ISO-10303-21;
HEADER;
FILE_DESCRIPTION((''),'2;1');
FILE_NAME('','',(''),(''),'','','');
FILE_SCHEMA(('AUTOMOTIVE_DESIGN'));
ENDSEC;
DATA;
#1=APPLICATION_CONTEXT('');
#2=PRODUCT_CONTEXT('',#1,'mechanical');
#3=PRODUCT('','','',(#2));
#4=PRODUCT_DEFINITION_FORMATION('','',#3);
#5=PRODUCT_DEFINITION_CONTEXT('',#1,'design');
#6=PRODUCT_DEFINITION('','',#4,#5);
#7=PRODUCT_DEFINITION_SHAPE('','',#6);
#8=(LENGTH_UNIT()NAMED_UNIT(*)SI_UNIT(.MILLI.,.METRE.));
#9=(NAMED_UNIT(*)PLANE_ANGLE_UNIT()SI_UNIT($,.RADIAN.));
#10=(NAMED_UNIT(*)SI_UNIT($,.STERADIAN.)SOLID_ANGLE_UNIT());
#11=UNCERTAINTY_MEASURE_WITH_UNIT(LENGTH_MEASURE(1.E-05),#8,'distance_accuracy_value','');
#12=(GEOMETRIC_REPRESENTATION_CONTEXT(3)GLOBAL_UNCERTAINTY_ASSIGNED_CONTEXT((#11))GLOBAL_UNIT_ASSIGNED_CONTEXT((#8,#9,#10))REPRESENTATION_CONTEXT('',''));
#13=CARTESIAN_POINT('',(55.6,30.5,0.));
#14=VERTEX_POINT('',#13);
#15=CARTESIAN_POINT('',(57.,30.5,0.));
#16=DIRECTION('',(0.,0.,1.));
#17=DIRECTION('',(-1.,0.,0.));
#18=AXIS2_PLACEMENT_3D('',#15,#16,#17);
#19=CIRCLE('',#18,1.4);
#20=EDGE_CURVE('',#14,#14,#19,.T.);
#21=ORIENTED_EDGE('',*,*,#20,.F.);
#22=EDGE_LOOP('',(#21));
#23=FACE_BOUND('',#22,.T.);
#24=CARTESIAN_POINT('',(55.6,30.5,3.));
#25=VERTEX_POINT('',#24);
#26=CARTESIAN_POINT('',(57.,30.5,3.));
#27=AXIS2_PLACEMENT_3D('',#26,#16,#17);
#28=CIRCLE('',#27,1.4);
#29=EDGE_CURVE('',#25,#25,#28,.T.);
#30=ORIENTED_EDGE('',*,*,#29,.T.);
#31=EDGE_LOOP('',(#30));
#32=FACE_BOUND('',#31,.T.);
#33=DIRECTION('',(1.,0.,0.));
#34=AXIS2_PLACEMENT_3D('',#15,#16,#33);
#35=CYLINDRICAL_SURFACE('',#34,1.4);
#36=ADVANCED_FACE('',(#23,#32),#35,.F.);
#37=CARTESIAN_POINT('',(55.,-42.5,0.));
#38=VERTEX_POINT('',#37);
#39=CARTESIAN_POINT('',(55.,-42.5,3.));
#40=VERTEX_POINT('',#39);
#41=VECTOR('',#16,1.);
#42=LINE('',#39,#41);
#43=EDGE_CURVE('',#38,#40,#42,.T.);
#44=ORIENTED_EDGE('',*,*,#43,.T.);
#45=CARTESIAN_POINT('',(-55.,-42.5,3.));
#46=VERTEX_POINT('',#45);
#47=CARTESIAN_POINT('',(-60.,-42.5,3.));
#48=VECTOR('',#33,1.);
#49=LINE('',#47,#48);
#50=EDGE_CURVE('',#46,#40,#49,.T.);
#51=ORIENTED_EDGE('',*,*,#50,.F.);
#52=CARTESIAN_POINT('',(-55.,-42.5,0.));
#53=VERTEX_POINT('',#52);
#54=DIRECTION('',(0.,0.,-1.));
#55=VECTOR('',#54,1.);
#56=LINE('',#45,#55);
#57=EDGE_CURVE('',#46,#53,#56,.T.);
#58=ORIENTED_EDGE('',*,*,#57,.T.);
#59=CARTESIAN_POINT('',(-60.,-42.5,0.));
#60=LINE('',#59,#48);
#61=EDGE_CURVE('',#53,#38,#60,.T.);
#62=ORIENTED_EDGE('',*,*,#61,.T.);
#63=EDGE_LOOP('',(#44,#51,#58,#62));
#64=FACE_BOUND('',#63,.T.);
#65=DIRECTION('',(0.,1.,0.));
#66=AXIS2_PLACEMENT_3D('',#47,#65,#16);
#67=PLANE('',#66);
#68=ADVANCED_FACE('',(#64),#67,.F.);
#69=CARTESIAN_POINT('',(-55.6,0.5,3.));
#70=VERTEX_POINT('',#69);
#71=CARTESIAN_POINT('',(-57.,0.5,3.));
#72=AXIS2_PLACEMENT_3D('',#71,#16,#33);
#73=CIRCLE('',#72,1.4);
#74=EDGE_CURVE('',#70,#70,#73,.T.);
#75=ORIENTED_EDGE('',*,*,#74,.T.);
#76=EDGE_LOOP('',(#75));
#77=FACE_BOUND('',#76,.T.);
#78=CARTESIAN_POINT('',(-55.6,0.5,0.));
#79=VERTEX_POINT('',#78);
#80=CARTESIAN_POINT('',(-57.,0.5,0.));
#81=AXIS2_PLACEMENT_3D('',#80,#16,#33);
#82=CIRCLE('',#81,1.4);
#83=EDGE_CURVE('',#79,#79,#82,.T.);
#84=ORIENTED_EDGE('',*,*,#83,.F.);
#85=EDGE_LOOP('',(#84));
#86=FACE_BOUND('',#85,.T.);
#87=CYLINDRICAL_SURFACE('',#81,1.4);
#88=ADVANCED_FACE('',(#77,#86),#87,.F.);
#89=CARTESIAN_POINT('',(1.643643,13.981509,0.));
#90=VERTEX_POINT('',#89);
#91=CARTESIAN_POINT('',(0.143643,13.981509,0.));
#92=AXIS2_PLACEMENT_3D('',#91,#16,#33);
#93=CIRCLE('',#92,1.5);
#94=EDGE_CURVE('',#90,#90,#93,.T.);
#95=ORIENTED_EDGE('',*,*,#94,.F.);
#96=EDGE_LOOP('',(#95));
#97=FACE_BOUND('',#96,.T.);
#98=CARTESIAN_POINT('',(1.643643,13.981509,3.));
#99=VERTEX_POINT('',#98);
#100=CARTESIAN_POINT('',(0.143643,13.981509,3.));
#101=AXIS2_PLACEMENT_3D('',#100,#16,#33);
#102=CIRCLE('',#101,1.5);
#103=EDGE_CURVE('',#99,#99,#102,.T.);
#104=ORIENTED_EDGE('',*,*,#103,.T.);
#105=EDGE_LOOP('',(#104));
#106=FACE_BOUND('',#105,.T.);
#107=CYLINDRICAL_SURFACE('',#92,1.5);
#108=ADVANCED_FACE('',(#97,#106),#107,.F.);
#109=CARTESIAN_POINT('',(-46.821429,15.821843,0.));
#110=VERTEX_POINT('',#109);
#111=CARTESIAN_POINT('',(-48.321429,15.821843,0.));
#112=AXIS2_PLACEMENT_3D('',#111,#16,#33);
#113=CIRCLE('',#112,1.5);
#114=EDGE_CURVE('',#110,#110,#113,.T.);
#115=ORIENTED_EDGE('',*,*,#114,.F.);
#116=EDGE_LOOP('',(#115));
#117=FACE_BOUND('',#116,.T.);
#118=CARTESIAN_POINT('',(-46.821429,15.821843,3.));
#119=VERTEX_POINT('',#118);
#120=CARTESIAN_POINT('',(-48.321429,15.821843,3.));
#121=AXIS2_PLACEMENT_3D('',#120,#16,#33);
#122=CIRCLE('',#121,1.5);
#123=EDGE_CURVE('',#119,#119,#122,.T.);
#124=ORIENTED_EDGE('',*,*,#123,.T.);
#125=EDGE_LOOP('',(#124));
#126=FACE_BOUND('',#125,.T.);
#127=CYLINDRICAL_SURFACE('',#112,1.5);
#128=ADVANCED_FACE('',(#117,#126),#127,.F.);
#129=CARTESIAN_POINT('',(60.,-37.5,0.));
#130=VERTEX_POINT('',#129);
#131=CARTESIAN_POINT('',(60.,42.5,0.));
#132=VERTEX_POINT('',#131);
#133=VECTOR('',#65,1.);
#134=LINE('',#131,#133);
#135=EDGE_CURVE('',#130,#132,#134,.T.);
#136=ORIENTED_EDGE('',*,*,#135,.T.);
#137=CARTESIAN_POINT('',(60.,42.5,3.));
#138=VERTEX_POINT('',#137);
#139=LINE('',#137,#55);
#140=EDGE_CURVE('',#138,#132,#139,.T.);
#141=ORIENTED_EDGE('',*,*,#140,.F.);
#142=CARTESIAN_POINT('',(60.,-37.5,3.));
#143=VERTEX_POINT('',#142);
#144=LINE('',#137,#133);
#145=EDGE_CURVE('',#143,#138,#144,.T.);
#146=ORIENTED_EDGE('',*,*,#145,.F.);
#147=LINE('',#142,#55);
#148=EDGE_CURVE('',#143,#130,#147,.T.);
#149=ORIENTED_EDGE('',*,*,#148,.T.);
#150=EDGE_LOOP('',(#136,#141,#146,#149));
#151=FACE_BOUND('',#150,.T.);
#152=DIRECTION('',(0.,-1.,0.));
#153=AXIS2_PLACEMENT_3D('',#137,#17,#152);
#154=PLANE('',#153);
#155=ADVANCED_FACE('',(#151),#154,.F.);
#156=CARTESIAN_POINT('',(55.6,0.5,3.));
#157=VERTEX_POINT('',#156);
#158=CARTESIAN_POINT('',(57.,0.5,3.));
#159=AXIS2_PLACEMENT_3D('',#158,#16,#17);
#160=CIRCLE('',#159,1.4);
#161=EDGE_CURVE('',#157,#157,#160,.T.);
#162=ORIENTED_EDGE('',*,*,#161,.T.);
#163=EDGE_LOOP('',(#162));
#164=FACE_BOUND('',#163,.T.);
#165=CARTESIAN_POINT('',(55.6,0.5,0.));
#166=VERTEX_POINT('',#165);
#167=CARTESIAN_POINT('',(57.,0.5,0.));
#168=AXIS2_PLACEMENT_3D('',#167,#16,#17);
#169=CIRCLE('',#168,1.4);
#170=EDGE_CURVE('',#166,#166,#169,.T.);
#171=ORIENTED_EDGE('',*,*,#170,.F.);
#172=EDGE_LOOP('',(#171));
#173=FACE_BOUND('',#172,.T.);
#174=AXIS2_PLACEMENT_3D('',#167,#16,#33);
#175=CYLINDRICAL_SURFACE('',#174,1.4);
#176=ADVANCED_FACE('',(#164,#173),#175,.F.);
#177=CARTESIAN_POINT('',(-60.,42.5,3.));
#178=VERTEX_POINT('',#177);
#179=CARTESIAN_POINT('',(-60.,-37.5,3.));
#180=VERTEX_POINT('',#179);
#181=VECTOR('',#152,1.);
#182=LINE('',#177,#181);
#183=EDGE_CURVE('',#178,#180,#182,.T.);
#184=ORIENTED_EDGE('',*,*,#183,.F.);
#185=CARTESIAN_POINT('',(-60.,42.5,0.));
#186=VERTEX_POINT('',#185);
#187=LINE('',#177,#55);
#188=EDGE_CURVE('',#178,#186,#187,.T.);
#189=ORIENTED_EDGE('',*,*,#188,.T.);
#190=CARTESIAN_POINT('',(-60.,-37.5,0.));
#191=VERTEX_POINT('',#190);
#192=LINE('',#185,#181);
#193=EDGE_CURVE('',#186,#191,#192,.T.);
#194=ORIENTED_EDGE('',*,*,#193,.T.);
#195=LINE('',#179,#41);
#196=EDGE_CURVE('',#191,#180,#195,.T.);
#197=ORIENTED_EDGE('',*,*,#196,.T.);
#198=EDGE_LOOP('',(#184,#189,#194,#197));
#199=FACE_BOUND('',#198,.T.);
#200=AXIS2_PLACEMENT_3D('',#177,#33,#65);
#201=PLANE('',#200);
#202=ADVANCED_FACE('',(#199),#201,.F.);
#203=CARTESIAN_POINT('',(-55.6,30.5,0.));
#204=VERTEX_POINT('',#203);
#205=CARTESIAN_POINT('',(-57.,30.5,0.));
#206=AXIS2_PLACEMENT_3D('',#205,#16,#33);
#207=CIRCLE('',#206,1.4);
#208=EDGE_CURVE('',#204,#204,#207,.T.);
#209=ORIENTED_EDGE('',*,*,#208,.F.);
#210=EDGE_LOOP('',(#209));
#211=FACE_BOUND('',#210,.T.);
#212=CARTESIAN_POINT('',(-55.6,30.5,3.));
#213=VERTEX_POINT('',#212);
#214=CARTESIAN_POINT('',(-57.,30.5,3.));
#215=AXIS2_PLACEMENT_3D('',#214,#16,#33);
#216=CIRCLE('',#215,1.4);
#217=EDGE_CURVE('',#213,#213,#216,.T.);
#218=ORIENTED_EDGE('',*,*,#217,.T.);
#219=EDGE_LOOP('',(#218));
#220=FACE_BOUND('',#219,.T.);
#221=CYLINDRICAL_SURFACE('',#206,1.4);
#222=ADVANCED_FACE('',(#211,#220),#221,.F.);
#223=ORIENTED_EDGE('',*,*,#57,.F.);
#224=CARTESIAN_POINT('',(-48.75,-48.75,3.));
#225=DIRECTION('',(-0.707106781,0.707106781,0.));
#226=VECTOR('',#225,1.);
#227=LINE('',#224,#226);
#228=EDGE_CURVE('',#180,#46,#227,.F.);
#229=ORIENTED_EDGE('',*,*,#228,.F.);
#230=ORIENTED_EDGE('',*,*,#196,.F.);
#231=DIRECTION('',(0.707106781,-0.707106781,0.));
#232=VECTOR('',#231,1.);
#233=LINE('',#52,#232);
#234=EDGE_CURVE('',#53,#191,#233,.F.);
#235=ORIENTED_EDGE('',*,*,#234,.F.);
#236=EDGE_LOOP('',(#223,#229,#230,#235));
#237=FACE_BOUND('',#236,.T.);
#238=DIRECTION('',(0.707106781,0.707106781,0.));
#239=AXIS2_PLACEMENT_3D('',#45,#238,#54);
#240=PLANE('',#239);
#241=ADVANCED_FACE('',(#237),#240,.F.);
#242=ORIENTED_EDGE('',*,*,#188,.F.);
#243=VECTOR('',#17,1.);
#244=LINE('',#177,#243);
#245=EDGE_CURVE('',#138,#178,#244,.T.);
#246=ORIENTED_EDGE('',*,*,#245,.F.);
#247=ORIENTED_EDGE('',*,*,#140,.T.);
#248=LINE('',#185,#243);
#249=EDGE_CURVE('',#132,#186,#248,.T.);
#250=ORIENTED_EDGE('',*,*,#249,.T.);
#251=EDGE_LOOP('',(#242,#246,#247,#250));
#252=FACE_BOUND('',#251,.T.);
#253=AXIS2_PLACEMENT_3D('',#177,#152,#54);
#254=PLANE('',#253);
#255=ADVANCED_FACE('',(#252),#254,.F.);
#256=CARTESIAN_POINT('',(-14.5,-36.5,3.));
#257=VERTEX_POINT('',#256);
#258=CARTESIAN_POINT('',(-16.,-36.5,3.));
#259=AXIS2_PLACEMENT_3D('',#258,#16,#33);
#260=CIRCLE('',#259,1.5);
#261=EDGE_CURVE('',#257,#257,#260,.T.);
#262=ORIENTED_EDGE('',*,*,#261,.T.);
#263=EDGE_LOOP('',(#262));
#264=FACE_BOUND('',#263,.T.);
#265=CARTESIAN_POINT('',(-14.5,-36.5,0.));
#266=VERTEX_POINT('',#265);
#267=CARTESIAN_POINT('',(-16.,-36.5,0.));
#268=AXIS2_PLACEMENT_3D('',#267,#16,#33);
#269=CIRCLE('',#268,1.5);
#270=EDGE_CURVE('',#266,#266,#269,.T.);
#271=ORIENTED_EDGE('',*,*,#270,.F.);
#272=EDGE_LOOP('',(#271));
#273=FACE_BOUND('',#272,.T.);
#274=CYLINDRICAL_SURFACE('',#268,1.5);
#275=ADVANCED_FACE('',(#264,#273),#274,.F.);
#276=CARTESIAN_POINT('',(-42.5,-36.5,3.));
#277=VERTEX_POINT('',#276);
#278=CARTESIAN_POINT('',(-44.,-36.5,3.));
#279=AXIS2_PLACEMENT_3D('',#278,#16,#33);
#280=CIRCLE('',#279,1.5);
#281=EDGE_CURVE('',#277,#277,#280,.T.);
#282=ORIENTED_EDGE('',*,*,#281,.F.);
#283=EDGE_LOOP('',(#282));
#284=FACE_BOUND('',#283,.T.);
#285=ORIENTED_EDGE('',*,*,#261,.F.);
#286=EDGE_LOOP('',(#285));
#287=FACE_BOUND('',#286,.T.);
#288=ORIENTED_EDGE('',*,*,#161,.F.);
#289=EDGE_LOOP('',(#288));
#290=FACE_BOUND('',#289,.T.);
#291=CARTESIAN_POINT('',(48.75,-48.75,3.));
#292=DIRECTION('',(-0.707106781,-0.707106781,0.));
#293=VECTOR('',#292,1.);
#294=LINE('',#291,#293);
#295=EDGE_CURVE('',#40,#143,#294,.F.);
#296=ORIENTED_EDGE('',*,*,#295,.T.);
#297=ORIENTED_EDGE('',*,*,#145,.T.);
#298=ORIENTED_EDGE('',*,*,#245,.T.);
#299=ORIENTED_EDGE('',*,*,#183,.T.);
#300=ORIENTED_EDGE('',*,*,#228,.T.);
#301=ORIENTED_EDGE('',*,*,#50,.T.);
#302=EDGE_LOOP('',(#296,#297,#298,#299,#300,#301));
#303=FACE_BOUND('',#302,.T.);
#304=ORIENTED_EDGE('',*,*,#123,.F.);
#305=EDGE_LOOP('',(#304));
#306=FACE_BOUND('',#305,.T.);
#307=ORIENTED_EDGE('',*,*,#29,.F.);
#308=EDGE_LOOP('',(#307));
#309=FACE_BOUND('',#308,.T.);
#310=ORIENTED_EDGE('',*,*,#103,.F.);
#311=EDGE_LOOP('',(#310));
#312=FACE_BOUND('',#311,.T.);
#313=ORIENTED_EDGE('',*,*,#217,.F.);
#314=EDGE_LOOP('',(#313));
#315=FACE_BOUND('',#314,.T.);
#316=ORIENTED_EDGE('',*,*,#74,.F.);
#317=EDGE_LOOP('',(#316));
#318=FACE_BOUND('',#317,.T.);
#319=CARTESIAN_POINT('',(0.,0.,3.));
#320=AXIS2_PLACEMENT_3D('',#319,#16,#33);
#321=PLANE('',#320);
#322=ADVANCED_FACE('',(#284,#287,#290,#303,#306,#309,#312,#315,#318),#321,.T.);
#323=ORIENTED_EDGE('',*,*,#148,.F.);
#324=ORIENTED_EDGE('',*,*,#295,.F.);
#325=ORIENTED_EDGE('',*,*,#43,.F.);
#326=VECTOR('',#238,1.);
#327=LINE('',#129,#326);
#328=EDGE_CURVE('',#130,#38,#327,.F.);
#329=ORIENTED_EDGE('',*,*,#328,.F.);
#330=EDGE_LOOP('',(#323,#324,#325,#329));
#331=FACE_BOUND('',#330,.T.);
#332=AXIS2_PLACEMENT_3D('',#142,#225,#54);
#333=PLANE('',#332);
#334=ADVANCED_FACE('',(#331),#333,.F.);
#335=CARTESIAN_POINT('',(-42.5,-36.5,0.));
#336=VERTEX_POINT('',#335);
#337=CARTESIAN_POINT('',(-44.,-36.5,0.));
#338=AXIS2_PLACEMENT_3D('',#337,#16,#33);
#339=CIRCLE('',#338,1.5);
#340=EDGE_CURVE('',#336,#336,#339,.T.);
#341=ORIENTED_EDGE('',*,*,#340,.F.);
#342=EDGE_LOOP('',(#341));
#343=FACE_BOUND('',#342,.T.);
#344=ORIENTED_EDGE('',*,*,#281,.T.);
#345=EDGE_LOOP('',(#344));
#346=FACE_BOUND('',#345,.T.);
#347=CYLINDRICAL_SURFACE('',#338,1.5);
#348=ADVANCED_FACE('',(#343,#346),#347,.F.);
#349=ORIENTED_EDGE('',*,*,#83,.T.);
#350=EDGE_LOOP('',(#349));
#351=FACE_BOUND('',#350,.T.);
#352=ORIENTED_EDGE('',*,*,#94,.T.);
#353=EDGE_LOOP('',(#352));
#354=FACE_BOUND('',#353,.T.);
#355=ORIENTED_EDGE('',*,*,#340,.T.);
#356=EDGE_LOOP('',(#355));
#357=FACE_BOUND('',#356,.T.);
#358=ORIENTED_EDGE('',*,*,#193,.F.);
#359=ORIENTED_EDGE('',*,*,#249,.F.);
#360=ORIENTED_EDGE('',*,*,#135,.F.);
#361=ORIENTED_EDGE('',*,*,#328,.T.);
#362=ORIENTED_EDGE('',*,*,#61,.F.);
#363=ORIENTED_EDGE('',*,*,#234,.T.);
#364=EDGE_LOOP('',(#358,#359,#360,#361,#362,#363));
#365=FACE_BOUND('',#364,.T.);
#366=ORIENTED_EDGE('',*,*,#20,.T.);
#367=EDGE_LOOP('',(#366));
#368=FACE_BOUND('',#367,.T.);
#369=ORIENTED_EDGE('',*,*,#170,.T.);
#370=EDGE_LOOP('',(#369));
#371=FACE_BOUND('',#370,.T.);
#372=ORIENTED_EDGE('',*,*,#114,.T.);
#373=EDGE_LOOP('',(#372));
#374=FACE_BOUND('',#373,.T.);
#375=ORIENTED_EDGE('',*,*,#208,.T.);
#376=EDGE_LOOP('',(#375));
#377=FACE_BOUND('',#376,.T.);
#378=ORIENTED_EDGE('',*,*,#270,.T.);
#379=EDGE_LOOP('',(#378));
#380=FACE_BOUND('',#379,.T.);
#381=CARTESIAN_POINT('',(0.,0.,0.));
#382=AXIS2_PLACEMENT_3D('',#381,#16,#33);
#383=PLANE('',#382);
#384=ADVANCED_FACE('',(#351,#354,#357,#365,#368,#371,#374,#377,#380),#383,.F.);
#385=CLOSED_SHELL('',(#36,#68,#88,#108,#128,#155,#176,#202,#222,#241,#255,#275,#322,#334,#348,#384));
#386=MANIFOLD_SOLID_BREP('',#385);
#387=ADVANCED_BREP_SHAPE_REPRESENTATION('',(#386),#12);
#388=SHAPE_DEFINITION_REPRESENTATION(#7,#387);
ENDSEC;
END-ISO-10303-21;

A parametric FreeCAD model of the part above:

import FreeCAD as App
import Part
import Sketcher
from FreeCAD import Vector
Q = App.Units.Quantity


def edges_at(feature, points):
    """Names of the edges that pass closest to the given points."""
    edges = feature.Shape.Edges
    near = lambda p: min(range(len(edges)), key=lambda i: edges[i].distToShape(Part.Vertex(*p))[0])
    return sorted({f"Edge{near(p) + 1}" for p in points})


def add_polygon(sketch, points):
    """Adds a closed chain of lines whose ends are joined by coincident constraints."""
    first, n = sketch.GeometryCount, len(points)
    for a, b in zip(points, points[1:] + points[:1]):
        sketch.addGeometry(Part.LineSegment(App.Vector(*a, 0), App.Vector(*b, 0)), False)
    for i in range(n):
        sketch.addConstraint(Sketcher.Constraint("Coincident", first + i, 2, first + (i + 1) % n, 1))

doc = App.newDocument("Part")
body = doc.addObject("PartDesign::Body", "Body")

# Sketch on XY plane
sketch1 = body.newObject("Sketcher::SketchObject", "Sketch")
sketch1.AttachmentSupport = (doc.getObject("XY_Plane"), [""])
sketch1.MapMode = "FlatFace"
add_polygon(sketch1, [(-60, 42.5), (-60, -42.5), (60, -42.5), (60, 42.5)])  # lines 0-3
sketch1.addConstraint([
    Sketcher.Constraint("Vertical", 0),
    Sketcher.Constraint("Horizontal", 1),
    Sketcher.Constraint("Vertical", 2),
    Sketcher.Constraint("Horizontal", 3),
    Sketcher.Constraint("Symmetric", 0, 2, 2, 2, -1, 1),
    Sketcher.Constraint("DistanceX", 1, 1, 1, 2, Q("120 mm")),
    Sketcher.Constraint("DistanceY", 0, 2, 0, 1, Q("85 mm")),
])
pad1 = body.newObject("PartDesign::Pad", "Pad")
pad1.Profile = sketch1
pad1.Length = 3

# Sketch on XY plane
sketch2 = body.newObject("Sketcher::SketchObject", "Sketch001")
sketch2.AttachmentSupport = (doc.getObject("XY_Plane"), [""])
sketch2.MapMode = "FlatFace"
sketch2.AttachmentOffset = App.Placement(Vector(0, 0, 3), App.Rotation())
sketch2.addGeometry([
    Part.Circle(Vector(-57, 30.5, 0), Vector(0, 0, 1), 1.4),
    Part.Circle(Vector(-57, 0.5, 0), Vector(0, 0, 1), 1.4),
    Part.Circle(Vector(57, 30.5, 0), Vector(0, 0, 1), 1.4),
    Part.Circle(Vector(57, 0.5, 0), Vector(0, 0, 1), 1.4),
], False)
sketch2.addConstraint([
    Sketcher.Constraint("Equal", 0, 1),
    Sketcher.Constraint("Equal", 1, 2),
    Sketcher.Constraint("Equal", 2, 3),
    Sketcher.Constraint("Symmetric", 0, 3, 2, 3, -2),
    Sketcher.Constraint("Symmetric", 1, 3, 3, 3, -2),
    Sketcher.Constraint("Vertical", 0, 3, 1, 3),
    Sketcher.Constraint("Diameter", 0, Q("2.8 mm")),
    Sketcher.Constraint("DistanceX", 0, 3, -1, 1, Q("57 mm")),
    Sketcher.Constraint("DistanceY", 1, 3, 0, 3, Q("30 mm")),
    Sketcher.Constraint("DistanceY", -1, 1, 0, 3, Q("30.5 mm")),
])
pocket1 = body.newObject("PartDesign::Pocket", "Pocket")
pocket1.Profile = sketch2
pocket1.Type = "ThroughAll"

# Sketch on XY plane
sketch3 = body.newObject("Sketcher::SketchObject", "Sketch002")
sketch3.AttachmentSupport = (doc.getObject("XY_Plane"), [""])
sketch3.MapMode = "FlatFace"
sketch3.AttachmentOffset = App.Placement(Vector(0, 0, 3), App.Rotation())
sketch3.addGeometry([
    Part.Circle(Vector(-44, -36.5, 0), Vector(0, 0, 1), 1.5),
    Part.Circle(Vector(-16, -36.5, 0), Vector(0, 0, 1), 1.5),
    Part.Circle(Vector(-48.321429, 15.821843, 0), Vector(0, 0, 1), 1.5),
    Part.Circle(Vector(0.143643, 13.981509, 0), Vector(0, 0, 1), 1.5),
], False)
sketch3.addConstraint([
    Sketcher.Constraint("Equal", 0, 1),
    Sketcher.Constraint("Equal", 1, 2),
    Sketcher.Constraint("Equal", 2, 3),
    Sketcher.Constraint("Horizontal", 0, 3, 1, 3),
    Sketcher.Constraint("Diameter", 0, Q("3 mm")),
    Sketcher.Constraint("DistanceX", 0, 3, -1, 1, Q("44 mm")),
    Sketcher.Constraint("DistanceX", 1, 3, -1, 1, Q("16 mm")),
    Sketcher.Constraint("DistanceY", 0, 3, -1, 1, Q("36.5 mm")),
    Sketcher.Constraint("DistanceX", 2, 3, -1, 1, Q("48.321429 mm")),
    Sketcher.Constraint("DistanceY", -1, 1, 3, 3, Q("13.981509 mm")),
    Sketcher.Constraint("DistanceX", 2, 3, 3, 3, Q("48.465072 mm")),
    Sketcher.Constraint("DistanceY", -1, 1, 2, 3, Q("15.821843 mm")),
])
pocket2 = body.newObject("PartDesign::Pocket", "Pocket001")
pocket2.Profile = sketch3
pocket2.Type = "ThroughAll"
doc.recompute()

chamfer = body.newObject("PartDesign::Chamfer", "Chamfer")
chamfer.Base = (pocket2, edges_at(pocket2, [(60, -42.5, 1.5), (-60, -42.5, 1.5)]))
chamfer.Size = 5

doc.recompute()
